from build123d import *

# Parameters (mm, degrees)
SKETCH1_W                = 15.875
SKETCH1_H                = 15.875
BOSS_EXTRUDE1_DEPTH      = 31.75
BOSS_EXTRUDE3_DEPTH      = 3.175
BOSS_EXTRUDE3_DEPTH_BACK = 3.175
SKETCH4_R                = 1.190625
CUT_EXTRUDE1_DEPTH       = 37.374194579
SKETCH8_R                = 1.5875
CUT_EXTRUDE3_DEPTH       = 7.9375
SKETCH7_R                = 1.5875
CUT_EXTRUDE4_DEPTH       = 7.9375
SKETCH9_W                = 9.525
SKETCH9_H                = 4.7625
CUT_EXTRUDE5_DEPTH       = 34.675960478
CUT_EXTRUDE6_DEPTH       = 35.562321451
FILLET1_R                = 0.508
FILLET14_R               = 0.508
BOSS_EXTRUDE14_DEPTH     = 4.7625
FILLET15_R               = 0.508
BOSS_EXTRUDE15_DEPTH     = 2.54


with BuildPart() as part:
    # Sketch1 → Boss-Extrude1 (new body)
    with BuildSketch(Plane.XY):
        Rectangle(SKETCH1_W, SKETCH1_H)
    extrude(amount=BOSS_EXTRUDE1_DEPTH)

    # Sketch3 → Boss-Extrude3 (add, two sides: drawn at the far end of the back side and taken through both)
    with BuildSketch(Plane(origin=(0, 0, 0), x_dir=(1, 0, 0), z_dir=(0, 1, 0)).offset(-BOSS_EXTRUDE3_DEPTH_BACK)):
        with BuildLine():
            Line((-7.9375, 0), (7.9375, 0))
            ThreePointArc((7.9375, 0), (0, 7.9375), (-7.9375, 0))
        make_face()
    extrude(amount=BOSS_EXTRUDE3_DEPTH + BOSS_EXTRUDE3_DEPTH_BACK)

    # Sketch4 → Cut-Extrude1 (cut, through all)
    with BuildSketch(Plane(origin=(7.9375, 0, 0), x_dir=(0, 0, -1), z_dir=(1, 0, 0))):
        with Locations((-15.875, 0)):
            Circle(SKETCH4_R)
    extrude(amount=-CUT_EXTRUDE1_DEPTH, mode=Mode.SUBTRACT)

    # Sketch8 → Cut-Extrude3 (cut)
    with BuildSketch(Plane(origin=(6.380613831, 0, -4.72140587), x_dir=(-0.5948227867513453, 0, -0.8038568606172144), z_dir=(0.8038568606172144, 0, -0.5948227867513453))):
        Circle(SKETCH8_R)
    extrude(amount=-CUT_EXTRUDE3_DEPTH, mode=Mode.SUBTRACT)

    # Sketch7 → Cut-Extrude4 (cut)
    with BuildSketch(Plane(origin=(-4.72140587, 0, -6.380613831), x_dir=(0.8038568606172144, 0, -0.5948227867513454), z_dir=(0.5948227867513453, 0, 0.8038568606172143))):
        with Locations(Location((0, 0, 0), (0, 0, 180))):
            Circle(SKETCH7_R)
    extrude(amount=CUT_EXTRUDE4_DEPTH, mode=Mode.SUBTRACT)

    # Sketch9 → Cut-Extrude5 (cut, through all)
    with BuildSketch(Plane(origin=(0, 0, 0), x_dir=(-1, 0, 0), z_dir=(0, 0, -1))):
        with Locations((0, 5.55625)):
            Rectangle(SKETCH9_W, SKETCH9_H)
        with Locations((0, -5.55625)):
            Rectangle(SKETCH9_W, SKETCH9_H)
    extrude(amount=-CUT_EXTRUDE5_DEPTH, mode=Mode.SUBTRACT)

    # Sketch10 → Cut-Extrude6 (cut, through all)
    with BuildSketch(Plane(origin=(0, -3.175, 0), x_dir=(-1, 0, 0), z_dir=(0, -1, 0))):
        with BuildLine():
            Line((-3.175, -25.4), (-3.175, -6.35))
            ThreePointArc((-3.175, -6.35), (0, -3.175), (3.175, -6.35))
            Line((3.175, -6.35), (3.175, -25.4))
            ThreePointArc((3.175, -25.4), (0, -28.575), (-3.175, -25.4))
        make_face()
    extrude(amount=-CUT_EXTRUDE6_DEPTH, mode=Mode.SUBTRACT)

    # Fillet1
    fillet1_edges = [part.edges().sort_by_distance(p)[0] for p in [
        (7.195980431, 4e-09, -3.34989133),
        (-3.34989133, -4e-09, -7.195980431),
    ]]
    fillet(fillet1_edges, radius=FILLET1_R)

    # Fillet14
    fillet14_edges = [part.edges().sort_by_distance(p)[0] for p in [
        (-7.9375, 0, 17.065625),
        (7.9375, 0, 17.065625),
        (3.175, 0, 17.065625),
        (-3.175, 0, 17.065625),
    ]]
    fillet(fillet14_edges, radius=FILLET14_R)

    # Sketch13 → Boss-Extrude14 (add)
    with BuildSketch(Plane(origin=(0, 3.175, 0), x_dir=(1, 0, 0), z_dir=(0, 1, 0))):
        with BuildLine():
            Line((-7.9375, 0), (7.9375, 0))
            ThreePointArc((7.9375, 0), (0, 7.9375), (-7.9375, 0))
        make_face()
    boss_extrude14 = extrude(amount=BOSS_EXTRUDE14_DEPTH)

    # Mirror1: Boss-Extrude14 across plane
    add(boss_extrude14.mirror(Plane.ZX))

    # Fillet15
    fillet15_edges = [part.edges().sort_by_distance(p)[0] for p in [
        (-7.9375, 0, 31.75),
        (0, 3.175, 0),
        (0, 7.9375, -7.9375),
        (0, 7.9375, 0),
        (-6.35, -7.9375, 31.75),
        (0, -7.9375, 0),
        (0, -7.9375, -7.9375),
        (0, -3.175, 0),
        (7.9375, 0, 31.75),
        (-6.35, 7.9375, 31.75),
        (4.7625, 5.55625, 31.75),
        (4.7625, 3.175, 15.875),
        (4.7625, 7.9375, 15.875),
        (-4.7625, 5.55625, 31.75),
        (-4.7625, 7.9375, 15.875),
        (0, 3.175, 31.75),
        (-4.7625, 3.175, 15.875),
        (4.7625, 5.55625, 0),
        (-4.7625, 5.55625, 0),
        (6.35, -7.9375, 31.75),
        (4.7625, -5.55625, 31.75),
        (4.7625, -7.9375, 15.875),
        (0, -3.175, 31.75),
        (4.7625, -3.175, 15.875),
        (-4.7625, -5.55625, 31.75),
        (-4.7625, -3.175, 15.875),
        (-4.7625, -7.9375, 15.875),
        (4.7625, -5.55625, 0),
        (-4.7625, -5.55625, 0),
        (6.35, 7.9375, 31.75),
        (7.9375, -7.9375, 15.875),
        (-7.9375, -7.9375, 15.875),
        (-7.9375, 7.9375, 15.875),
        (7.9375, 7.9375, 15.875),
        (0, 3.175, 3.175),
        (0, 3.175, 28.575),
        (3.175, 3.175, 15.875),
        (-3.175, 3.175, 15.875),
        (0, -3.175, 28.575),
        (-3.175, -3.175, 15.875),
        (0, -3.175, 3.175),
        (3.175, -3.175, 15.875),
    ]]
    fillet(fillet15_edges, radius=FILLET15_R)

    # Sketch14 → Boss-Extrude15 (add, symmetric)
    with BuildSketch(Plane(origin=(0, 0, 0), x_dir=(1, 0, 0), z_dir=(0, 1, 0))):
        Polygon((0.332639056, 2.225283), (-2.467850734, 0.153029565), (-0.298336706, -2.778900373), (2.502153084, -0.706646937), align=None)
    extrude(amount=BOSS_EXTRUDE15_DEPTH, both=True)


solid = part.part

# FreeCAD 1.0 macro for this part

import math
import FreeCAD as App
import Part
import Sketcher

V = App.Vector
Q = App.Units.Quantity


def edges_at(feature, points):
    """Names of the edges that pass closest to the given points."""
    edges = feature.Shape.Edges
    near = lambda p: min(range(len(edges)), key=lambda i: edges[i].distToShape(Part.Vertex(*p))[0])
    return sorted({f"Edge{near(p) + 1}" for p in points})


def add_polygon(sketch, points):
    """Adds a closed chain of lines whose ends are joined by coincident constraints."""
    first, n = sketch.GeometryCount, len(points)
    for a, b in zip(points, points[1:] + points[:1]):
        sketch.addGeometry(Part.LineSegment(App.Vector(*a, 0), App.Vector(*b, 0)), False)
    for i in range(n):
        sketch.addConstraint(Sketcher.Constraint("Coincident", first + i, 2, first + (i + 1) % n, 1))

doc = App.newDocument("Part")
params = doc.addObject("Spreadsheet::Sheet", "Params")
for row, (alias, value) in enumerate([
    ("sketch1_width", "0.625 in"),
    ("pad1_length", "1.25 in"),
    ("sketch2_radius", "0.3125 in"),
    ("pad2_length", "0.125 in"),
    ("pad2_length2", "0.125 in"),
    ("sketch3_diameter", "0.09375 in"),
    ("sketch4_diameter", "0.125 in"),
    ("pocket2_length", "0.3125 in"),
    ("sketch5_diameter", "0.125 in"),
    ("pocket3_length", "0.3125 in"),
    ("sketch6_width", "0.375 in"),
    ("sketch6_height", "0.1875 in"),
    ("sketch7_radius", "0.125 in"),
    ("sketch7_height", "0.75 in"),
    ("fillet_radius", "0.02 in"),
    ("fillet2_radius", "0.02 in"),
    ("sketch8_radius", "0.3125 in"),
    ("pad3_length", "0.1875 in"),
    ("fillet3_radius", "0.02 in"),
    ("pad4_length", "0.2 in"),
], start=1):
    params.set(f"A{row}", alias)
    params.set(f"B{row}", "=" + value)
    params.setAlias(f"B{row}", alias)

body = doc.addObject("PartDesign::Body", "Body")

sketch1 = doc.addObject("Sketcher::SketchObject", "Sketch")
body.addObject(sketch1)
sketch1.AttachmentSupport = (doc.XY_Plane, [""])
sketch1.MapMode = "FlatFace"
add_polygon(sketch1, [(-8, 8), (-8, -8), (8, -8), (8, 8)])
sketch1.addConstraint(Sketcher.Constraint("Vertical", 0))
sketch1.addConstraint(Sketcher.Constraint("Horizontal", 1))
sketch1.addConstraint(Sketcher.Constraint("Vertical", 2))
sketch1.addConstraint(Sketcher.Constraint("Horizontal", 3))
sketch1.addConstraint(Sketcher.Constraint("Symmetric", 0, 2, 2, 2, -1, 1))
sketch1.addConstraint(Sketcher.Constraint("Equal", 3, 0))
sketch1.addConstraint(Sketcher.Constraint("DistanceX", 1, 1, 1, 2, Q("0.625 in")))
sketch1.setExpression("Constraints[10]", "Params.sketch1_width")
pad1 = doc.addObject("PartDesign::Pad", "Pad")
body.addObject(pad1)
pad1.Profile = sketch1
pad1.setExpression("Length", "Params.pad1_length")

sketch2 = doc.addObject("Sketcher::SketchObject", "Sketch001")
body.addObject(sketch2)
sketch2.AttachmentSupport = (doc.XZ_Plane, [""])
sketch2.MapMode = "FlatFace"
sketch2.addGeometry(Part.LineSegment(V(-8, 0, 0), V(8, 0, 0)), False)
sketch2.addGeometry(Part.ArcOfCircle(Part.Circle(V(0, 0, 0), V(0, 0, 1), 8), math.radians(180), math.radians(360)), False)
sketch2.addConstraint(Sketcher.Constraint("Coincident", 0, 1, 1, 1))
sketch2.addConstraint(Sketcher.Constraint("Coincident", 1, 2, 0, 2))
sketch2.addConstraint(Sketcher.Constraint("Horizontal", 0))
sketch2.addConstraint(Sketcher.Constraint("Coincident", 1, 3, -1, 1))
sketch2.addConstraint(Sketcher.Constraint("PointOnObject", 0, 1, -1))
sketch2.addConstraint(Sketcher.Constraint("Radius", 1, Q("0.3125 in")))
sketch2.setExpression("Constraints[5]", "Params.sketch2_radius")
pad2 = doc.addObject("PartDesign::Pad", "Pad001")
body.addObject(pad2)
pad2.Profile = sketch2
pad2.Type = "TwoLengths"
pad2.setExpression("Length", "Params.pad2_length")
pad2.setExpression("Length2", "Params.pad2_length2")
pad2.Reversed = True

sketch3 = doc.addObject("Sketcher::SketchObject", "Sketch002")
body.addObject(sketch3)
sketch3.AttachmentSupport = (doc.YZ_Plane, [""])
sketch3.MapMode = "FlatFace"
sketch3.AttachmentOffset = App.Placement(V(0, 0, 0.3125 * 25.4), App.Rotation())
sketch3.addGeometry(Part.Circle(V(0, 15.9, 0), V(0, 0, 1), 1.2), False)
sketch3.addConstraint(Sketcher.Constraint("PointOnObject", 0, 3, -2))
sketch3.addConstraint(Sketcher.Constraint("Diameter", 0, Q("0.09375 in")))
sketch3.addConstraint(Sketcher.Constraint("DistanceY", -1, 1, 0, 3, Q("0.625 in")))
sketch3.setExpression("Constraints[1]", "Params.sketch3_diameter")
pocket1 = doc.addObject("PartDesign::Pocket", "Pocket")
body.addObject(pocket1)
pocket1.Profile = sketch3
pocket1.Type = "ThroughAll"

sketch4 = doc.addObject("Sketcher::SketchObject", "Sketch003")
body.addObject(sketch4)
sketch4.Placement = App.Placement(V(6.380614, 0, -4.721406), App.Rotation(V(-0.594822787, 0, -0.803856861), V(0, 1.000000001, 0), V(0.803856861, 0, -0.594822787), "ZXY"))
sketch4.addGeometry(Part.Circle(V(0, 0, 0), V(0, 0, 1), 1.6), False)
sketch4.addConstraint(Sketcher.Constraint("Coincident", 0, 3, -1, 1))
sketch4.addConstraint(Sketcher.Constraint("Diameter", 0, Q("0.125 in")))
sketch4.setExpression("Constraints[1]", "Params.sketch4_diameter")
pocket2 = doc.addObject("PartDesign::Pocket", "Pocket001")
body.addObject(pocket2)
pocket2.Profile = sketch4
pocket2.setExpression("Length", "Params.pocket2_length")

sketch5 = doc.addObject("Sketcher::SketchObject", "Sketch004")
body.addObject(sketch5)
sketch5.Placement = App.Placement(V(-4.721406, 0, -6.380614), App.Rotation(V(0.803856861, 0, -0.594822787), V(0, 1.000000001, 0), V(0.594822787, 0, 0.803856861), "ZXY"))
sketch5.addGeometry(Part.Circle(V(0, 0, 0), V(0, 0, 1), 1.6), False)
sketch5.addConstraint(Sketcher.Constraint("Coincident", 0, 3, -1, 1))
sketch5.addConstraint(Sketcher.Constraint("Diameter", 0, Q("0.125 in")))
sketch5.setExpression("Constraints[1]", "Params.sketch5_diameter")
pocket3 = doc.addObject("PartDesign::Pocket", "Pocket002")
body.addObject(pocket3)
pocket3.Profile = sketch5
pocket3.setExpression("Length", "Params.pocket3_length")
pocket3.Reversed = True

sketch6 = doc.addObject("Sketcher::SketchObject", "Sketch005")
body.addObject(sketch6)
sketch6.AttachmentSupport = (doc.XY_Plane, [""])
sketch6.MapMode = "FlatFace"
add_polygon(sketch6, [(4.8, 7.9), (4.8, 3.2), (-4.8, 3.2), (-4.8, 7.9)])
add_polygon(sketch6, [(4.8, -3.2), (4.8, -7.9), (-4.8, -7.9), (-4.8, -3.2)])
sketch6.addConstraint(Sketcher.Constraint("Vertical", 0))
sketch6.addConstraint(Sketcher.Constraint("Horizontal", 1))
sketch6.addConstraint(Sketcher.Constraint("Vertical", 2))
sketch6.addConstraint(Sketcher.Constraint("Horizontal", 3))
sketch6.addConstraint(Sketcher.Constraint("Vertical", 4))
sketch6.addConstraint(Sketcher.Constraint("Horizontal", 5))
sketch6.addConstraint(Sketcher.Constraint("Vertical", 6))
sketch6.addConstraint(Sketcher.Constraint("Horizontal", 7))
sketch6.addConstraint(Sketcher.Constraint("Symmetric", 2, 2, 4, 2, -1, 1))
sketch6.addConstraint(Sketcher.Constraint("Symmetric", 0, 2, 6, 2, -1, 1))
sketch6.addConstraint(Sketcher.Constraint("Vertical", 3, 2, 4, 2))
sketch6.addConstraint(Sketcher.Constraint("DistanceX", 1, 2, 1, 1, Q("0.375 in")))
sketch6.addConstraint(Sketcher.Constraint("DistanceY", 0, 2, 0, 1, Q("0.1875 in")))
sketch6.addConstraint(Sketcher.Constraint("DistanceY", 6, 2, 1, 2, Q("0.25 in")))
sketch6.setExpression("Constraints[19]", "Params.sketch6_width")
sketch6.setExpression("Constraints[20]", "Params.sketch6_height")
pocket4 = doc.addObject("PartDesign::Pocket", "Pocket003")
body.addObject(pocket4)
pocket4.Profile = sketch6
pocket4.Type = "ThroughAll"
pocket4.Reversed = True

sketch7 = doc.addObject("Sketcher::SketchObject", "Sketch006")
body.addObject(sketch7)
sketch7.AttachmentSupport = (doc.XZ_Plane, [""])
sketch7.MapMode = "FlatFace"
sketch7.AttachmentOffset = App.Placement(V(0, 0, 0.125 * 25.4), App.Rotation())
sketch7.addGeometry(Part.LineSegment(V(3.2, 6.3, 0), V(3.2, 25.4, 0)), False)
sketch7.addGeometry(Part.ArcOfCircle(Part.Circle(V(0, 25.4, 0), V(0, 0, 1), 3.2), math.radians(0), math.radians(180)), False)
sketch7.addGeometry(Part.LineSegment(V(-3.2, 25.4, 0), V(-3.2, 6.3, 0)), False)
sketch7.addGeometry(Part.ArcOfCircle(Part.Circle(V(0, 6.3, 0), V(0, 0, 1), 3.2), math.radians(180), math.radians(360)), False)
sketch7.addConstraint(Sketcher.Constraint("Tangent", 0, 2, 1, 1))
sketch7.addConstraint(Sketcher.Constraint("Tangent", 1, 2, 2, 1))
sketch7.addConstraint(Sketcher.Constraint("Tangent", 2, 2, 3, 1))
sketch7.addConstraint(Sketcher.Constraint("Tangent", 3, 2, 0, 1))
sketch7.addConstraint(Sketcher.Constraint("Vertical", 0))
sketch7.addConstraint(Sketcher.Constraint("Vertical", 2))
sketch7.addConstraint(Sketcher.Constraint("PointOnObject", 1, 3, -2))
sketch7.addConstraint(Sketcher.Constraint("DistanceY", -1, 1, 1, 3, Q("1 in")))
sketch7.addConstraint(Sketcher.Constraint("Radius", 1, Q("0.125 in")))
sketch7.addConstraint(Sketcher.Constraint("DistanceY", 0, 1, 0, 2, Q("0.75 in")))
sketch7.setExpression("Constraints[8]", "Params.sketch7_radius")
sketch7.setExpression("Constraints[9]", "Params.sketch7_height")
pocket5 = doc.addObject("PartDesign::Pocket", "Pocket004")
body.addObject(pocket5)
pocket5.Profile = sketch7
pocket5.Type = "ThroughAll"
doc.recompute()

fillet = doc.addObject("PartDesign::Fillet", "Fillet")
body.addObject(fillet)
fillet.Base = (pocket5, edges_at(pocket5, [(7.196, 0, -3.35), (-3.35, 0, -7.196)]))
fillet.setExpression("Radius", "Params.fillet_radius")
doc.recompute()

fillet2 = doc.addObject("PartDesign::Fillet", "Fillet001")
body.addObject(fillet2)
fillet2.Base = (fillet, edges_at(fillet, [
    (-7.938, 0, 17.066),
    (7.938, 0, 17.066),
    (3.175, 0, 17.066),
    (-3.175, 0, 17.066),
]))
fillet2.setExpression("Radius", "Params.fillet2_radius")

sketch8 = doc.addObject("Sketcher::SketchObject", "Sketch007")
body.addObject(sketch8)
sketch8.AttachmentSupport = (doc.XZ_Plane, [""])
sketch8.MapMode = "FlatFace"
sketch8.AttachmentOffset = App.Placement(V(0, 0, -0.125 * 25.4), App.Rotation())
sketch8.addGeometry(Part.LineSegment(V(-8, 0, 0), V(8, 0, 0)), False)
sketch8.addGeometry(Part.ArcOfCircle(Part.Circle(V(0, 0, 0), V(0, 0, 1), 8), math.radians(180), math.radians(360)), False)
sketch8.addConstraint(Sketcher.Constraint("Coincident", 0, 1, 1, 1))
sketch8.addConstraint(Sketcher.Constraint("Coincident", 1, 2, 0, 2))
sketch8.addConstraint(Sketcher.Constraint("Horizontal", 0))
sketch8.addConstraint(Sketcher.Constraint("Coincident", 1, 3, -1, 1))
sketch8.addConstraint(Sketcher.Constraint("PointOnObject", 0, 1, -1))
sketch8.addConstraint(Sketcher.Constraint("Radius", 1, Q("0.3125 in")))
sketch8.setExpression("Constraints[5]", "Params.sketch8_radius")
pad3 = doc.addObject("PartDesign::Pad", "Pad002")
body.addObject(pad3)
pad3.Profile = sketch8
pad3.setExpression("Length", "Params.pad3_length")
pad3.Reversed = True
doc.recompute()

mirrored = doc.addObject("PartDesign::Mirrored", "Mirrored")
body.addObject(mirrored)
mirrored.Originals = [pad3]
mirrored.MirrorPlane = (doc.XZ_Plane, [""])
body.Tip = mirrored
doc.recompute()

fillet3 = doc.addObject("PartDesign::Fillet", "Fillet002")
body.addObject(fillet3)
fillet3.Base = (mirrored, edges_at(mirrored, [
    (-7.938, 0, 31.75),
    (0, 3.175, 0),
    (0, 7.938, -7.938),
    (0, 7.938, 0),
    (-6.35, -7.938, 31.75),
    (0, -7.938, 0),
    (0, -7.938, -7.938),
    (0, -3.175, 0),
    (7.938, 0, 31.75),
    (-6.35, 7.938, 31.75),
    (4.763, 5.556, 31.75),
    (4.763, 3.175, 15.875),
    (4.763, 7.938, 15.875),
    (-4.763, 5.556, 31.75),
    (-4.763, 7.938, 15.875),
    (0, 3.175, 31.75),
    (-4.763, 3.175, 15.875),
    (4.763, 5.556, 0),
    (-4.763, 5.556, 0),
    (6.35, -7.938, 31.75),
    (4.763, -5.556, 31.75),
    (4.763, -7.938, 15.875),
    (0, -3.175, 31.75),
    (4.763, -3.175, 15.875),
    (-4.763, -5.556, 31.75),
    (-4.763, -3.175, 15.875),
    (-4.763, -7.938, 15.875),
    (4.763, -5.556, 0),
    (-4.763, -5.556, 0),
    (6.35, 7.938, 31.75),
    (7.938, -7.938, 15.875),
    (-7.938, -7.938, 15.875),
    (-7.938, 7.938, 15.875),
    (7.938, 7.938, 15.875),
    (0, 3.175, 3.175),
    (0, 3.175, 28.575),
    (3.175, 3.175, 15.875),
    (-3.175, 3.175, 15.875),
    (0, -3.175, 28.575),
    (-3.175, -3.175, 15.875),
    (0, -3.175, 3.175),
    (3.175, -3.175, 15.875),
]))
fillet3.setExpression("Radius", "Params.fillet3_radius")

sketch9 = doc.addObject("Sketcher::SketchObject", "Sketch008")
body.addObject(sketch9)
sketch9.AttachmentSupport = (doc.XZ_Plane, [""])
sketch9.MapMode = "FlatFace"
add_polygon(sketch9, [(0.3, -2.2), (-2.5, -0.2), (-0.3, 2.8), (2.5, 0.7)])
sketch9.addConstraint(Sketcher.Constraint("Perpendicular", 0, 1))
sketch9.addConstraint(Sketcher.Constraint("Perpendicular", 1, 2))
sketch9.addConstraint(Sketcher.Constraint("Perpendicular", 2, 3))
sketch9.addConstraint(Sketcher.Constraint("Angle", 0, Q("143.5 deg")))
sketch9.addConstraint(Sketcher.Constraint("DistanceY", -1, 1, 1, 2, Q("2.7789 mm")))
sketch9.addConstraint(Sketcher.Constraint("Distance", 1, Q("3.647328 mm")))
sketch9.addConstraint(Sketcher.Constraint("DistanceX", 0, 2, -1, 1, Q("2.467851 mm")))
sketch9.addConstraint(Sketcher.Constraint("DistanceX", -1, 1, 3, 2, Q("0.332639 mm")))
pad4 = doc.addObject("PartDesign::Pad", "Pad003")
body.addObject(pad4)
pad4.Profile = sketch9
pad4.setExpression("Length", "Params.pad4_length")
pad4.Midplane = True

doc.recompute()
